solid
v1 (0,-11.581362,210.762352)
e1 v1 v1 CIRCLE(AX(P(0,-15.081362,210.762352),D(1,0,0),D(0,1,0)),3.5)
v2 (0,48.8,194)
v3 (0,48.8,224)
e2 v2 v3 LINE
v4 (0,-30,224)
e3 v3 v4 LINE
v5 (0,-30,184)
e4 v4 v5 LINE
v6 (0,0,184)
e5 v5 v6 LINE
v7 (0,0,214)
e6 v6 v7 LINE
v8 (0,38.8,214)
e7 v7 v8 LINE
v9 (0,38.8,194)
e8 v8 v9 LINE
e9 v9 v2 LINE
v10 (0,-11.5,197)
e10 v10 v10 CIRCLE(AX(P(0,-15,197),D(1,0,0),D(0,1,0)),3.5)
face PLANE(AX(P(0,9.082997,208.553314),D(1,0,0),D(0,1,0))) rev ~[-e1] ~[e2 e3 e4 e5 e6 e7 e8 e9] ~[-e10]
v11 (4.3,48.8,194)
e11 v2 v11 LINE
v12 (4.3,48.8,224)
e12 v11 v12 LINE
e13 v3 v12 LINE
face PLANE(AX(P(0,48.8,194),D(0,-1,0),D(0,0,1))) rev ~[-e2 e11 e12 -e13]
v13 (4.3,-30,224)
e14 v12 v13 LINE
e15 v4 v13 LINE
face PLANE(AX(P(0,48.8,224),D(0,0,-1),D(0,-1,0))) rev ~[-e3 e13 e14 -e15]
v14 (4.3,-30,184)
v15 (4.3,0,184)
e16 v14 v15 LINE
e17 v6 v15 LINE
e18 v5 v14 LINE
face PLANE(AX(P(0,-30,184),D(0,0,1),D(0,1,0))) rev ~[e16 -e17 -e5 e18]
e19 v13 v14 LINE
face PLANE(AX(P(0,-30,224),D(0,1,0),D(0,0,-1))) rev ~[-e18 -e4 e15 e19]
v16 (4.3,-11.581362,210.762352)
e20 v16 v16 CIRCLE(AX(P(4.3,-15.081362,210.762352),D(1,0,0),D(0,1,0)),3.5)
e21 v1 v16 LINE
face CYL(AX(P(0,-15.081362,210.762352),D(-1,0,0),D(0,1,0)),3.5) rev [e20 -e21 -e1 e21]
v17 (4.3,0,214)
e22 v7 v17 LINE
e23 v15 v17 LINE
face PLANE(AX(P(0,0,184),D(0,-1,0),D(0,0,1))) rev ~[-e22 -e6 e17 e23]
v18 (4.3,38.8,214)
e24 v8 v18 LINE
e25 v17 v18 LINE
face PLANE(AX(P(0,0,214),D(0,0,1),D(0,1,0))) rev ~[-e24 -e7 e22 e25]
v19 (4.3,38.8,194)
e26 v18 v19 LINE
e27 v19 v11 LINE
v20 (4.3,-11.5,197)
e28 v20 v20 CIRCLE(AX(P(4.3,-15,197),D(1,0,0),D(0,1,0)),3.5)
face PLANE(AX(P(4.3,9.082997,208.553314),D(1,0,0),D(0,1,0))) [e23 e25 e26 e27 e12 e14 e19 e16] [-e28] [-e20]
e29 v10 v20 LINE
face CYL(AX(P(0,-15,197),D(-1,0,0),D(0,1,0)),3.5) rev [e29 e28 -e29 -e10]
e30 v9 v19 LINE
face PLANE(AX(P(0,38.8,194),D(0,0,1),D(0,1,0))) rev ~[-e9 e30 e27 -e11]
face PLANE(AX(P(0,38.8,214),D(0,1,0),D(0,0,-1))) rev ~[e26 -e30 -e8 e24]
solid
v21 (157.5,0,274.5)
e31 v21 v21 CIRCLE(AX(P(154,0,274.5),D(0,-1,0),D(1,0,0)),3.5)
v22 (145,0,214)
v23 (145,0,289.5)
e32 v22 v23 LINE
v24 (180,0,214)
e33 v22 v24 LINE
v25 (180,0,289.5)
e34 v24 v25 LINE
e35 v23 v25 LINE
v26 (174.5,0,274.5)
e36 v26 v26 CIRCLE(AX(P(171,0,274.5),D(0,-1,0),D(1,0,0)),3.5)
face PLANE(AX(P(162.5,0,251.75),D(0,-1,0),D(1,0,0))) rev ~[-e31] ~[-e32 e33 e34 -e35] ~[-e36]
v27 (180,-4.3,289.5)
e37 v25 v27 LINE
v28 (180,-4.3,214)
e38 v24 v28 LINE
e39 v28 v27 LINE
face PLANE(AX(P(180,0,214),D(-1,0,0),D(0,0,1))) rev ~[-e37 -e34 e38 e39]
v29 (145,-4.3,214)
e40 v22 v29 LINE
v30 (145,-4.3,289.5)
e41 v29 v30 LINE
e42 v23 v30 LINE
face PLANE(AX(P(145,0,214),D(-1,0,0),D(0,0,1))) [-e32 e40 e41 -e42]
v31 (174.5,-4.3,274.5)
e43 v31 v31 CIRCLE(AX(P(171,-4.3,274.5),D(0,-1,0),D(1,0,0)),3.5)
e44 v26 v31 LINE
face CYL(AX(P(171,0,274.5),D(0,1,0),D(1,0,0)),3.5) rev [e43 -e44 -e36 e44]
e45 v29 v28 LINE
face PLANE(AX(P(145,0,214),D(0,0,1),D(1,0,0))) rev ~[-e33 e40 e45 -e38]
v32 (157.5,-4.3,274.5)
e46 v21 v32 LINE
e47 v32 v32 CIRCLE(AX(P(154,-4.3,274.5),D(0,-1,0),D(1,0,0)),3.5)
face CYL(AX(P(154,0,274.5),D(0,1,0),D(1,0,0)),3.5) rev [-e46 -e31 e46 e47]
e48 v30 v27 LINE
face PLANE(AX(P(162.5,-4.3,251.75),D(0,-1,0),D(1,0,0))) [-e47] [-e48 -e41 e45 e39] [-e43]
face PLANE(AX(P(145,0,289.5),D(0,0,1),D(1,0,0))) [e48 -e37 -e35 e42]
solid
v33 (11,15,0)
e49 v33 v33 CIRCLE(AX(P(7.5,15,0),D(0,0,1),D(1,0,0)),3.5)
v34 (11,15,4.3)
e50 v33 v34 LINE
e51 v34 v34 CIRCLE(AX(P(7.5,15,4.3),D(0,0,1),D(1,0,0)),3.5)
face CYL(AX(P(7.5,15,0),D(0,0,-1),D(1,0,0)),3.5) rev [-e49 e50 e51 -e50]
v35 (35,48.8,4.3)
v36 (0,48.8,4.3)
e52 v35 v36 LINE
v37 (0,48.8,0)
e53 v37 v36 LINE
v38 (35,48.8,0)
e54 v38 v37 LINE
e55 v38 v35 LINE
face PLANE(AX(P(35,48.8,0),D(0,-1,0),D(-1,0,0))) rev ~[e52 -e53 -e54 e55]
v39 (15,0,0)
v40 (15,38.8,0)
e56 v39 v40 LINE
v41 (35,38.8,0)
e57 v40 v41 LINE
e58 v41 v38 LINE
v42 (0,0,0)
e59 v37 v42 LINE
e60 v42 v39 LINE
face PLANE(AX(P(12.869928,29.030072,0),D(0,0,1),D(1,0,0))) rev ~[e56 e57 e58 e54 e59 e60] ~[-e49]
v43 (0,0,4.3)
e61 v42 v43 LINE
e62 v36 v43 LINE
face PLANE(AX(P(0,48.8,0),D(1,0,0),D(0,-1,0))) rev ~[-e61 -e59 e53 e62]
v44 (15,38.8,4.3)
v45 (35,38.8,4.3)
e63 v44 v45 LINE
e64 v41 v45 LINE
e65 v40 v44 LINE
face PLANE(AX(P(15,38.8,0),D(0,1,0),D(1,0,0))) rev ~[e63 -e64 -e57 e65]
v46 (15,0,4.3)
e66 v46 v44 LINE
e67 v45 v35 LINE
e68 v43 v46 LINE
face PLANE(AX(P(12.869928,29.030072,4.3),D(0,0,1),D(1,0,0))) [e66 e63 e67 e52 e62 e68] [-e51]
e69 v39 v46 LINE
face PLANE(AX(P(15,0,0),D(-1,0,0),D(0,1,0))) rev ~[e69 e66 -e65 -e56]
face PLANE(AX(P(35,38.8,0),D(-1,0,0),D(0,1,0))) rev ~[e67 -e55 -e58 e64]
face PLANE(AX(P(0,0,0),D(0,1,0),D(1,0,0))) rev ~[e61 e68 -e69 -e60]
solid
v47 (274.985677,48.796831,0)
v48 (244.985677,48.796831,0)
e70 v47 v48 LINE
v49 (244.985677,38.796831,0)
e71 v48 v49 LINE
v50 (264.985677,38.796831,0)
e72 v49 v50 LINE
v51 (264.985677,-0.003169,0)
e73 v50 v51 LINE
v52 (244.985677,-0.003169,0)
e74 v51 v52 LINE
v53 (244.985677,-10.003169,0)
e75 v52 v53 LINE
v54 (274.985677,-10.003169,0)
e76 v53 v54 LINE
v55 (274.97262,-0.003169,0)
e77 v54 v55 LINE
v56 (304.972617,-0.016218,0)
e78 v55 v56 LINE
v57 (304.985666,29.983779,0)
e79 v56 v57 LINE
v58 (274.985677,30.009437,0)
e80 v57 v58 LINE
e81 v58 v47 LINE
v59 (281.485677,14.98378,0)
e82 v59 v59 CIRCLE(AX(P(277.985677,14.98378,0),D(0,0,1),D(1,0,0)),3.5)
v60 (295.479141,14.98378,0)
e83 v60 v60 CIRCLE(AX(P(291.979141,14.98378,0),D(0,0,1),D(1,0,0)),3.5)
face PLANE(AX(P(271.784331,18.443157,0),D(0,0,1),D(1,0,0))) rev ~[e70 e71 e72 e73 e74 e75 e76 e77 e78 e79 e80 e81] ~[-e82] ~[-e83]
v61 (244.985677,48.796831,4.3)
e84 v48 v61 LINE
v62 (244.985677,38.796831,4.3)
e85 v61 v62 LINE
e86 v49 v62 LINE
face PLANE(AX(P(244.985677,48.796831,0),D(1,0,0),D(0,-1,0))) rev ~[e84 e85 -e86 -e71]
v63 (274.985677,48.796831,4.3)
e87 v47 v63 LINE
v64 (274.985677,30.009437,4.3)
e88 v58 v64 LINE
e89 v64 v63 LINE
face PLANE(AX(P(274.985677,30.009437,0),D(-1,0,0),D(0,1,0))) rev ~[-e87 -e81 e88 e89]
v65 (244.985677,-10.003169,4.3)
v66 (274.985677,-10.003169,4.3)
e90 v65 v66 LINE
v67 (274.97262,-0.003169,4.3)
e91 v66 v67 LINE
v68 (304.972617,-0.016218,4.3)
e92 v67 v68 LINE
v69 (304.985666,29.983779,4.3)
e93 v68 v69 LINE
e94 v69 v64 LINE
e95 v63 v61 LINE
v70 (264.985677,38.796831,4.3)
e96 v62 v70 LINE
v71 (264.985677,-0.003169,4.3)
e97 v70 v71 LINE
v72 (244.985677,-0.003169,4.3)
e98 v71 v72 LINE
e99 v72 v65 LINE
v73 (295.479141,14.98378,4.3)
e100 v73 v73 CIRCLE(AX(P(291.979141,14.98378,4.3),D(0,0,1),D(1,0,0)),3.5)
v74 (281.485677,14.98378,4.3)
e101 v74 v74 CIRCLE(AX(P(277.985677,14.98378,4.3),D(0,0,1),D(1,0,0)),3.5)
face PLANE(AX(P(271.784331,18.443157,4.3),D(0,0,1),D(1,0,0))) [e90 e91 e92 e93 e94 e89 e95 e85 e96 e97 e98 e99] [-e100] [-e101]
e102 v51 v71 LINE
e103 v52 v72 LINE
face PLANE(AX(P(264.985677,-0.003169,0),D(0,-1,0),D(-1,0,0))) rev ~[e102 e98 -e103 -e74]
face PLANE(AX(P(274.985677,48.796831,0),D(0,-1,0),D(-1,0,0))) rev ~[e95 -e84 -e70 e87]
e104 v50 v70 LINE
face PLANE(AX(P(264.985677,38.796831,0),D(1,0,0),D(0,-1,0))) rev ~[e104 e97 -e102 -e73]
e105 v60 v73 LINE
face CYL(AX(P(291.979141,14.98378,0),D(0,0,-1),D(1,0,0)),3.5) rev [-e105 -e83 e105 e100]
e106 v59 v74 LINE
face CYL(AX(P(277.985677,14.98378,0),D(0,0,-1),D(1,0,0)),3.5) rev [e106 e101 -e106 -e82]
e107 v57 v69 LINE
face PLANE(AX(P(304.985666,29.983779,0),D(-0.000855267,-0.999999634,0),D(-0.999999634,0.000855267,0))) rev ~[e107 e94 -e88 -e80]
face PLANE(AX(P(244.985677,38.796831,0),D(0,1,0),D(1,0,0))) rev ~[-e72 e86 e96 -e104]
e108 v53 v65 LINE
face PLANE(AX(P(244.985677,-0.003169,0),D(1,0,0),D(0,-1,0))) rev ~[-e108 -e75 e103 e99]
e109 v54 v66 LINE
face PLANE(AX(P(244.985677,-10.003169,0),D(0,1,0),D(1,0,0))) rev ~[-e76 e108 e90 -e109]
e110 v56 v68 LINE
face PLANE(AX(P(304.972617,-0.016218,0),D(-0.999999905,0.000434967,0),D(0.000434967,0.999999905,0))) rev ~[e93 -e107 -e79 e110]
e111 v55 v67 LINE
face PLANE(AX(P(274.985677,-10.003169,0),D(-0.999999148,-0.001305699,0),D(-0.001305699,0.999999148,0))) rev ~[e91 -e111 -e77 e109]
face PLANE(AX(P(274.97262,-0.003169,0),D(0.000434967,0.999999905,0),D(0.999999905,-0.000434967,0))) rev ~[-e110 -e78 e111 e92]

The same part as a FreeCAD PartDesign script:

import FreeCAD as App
import Part
import Sketcher
from FreeCAD import Vector
Q = App.Units.Quantity


def add_polygon(sketch, points):
    """Adds a closed chain of lines whose ends are joined by coincident constraints."""
    first, n = sketch.GeometryCount, len(points)
    for a, b in zip(points, points[1:] + points[:1]):
        sketch.addGeometry(Part.LineSegment(App.Vector(*a, 0), App.Vector(*b, 0)), False)
    for i in range(n):
        sketch.addConstraint(Sketcher.Constraint("Coincident", first + i, 2, first + (i + 1) % n, 1))

doc = App.newDocument("Part")
body = doc.addObject("PartDesign::Body", "Body")
body.AllowCompound = True

# Sketch on XY plane
sketch1 = doc.addObject("Sketcher::SketchObject", "Sketch")
body.addObject(sketch1)
sketch1.AttachmentSupport = (doc.XY_Plane, [""])
sketch1.MapMode = "FlatFace"
add_polygon(sketch1, [(15, 38.8), (35, 38.8), (35, 48.8), (0, 48.8), (0, 0), (15, 0)])  # lines 0-5
sketch1.addGeometry(Part.Circle(Vector(7.5, 15, 0), Vector(0, 0, 1), 3.5), False)  # 6
add_polygon(sketch1, [(265, 38.8), (265, 0), (245, 0), (245, -10), (275, -10), (275, 0), (305, 0), (305, 30), (275, 30), (275, 48.8), (245, 48.8), (245, 38.8)])  # lines 7-18
sketch1.addGeometry(Part.Circle(Vector(278, 15, 0), Vector(0, 0, 1), 3.5), False)  # 19
sketch1.addGeometry(Part.Circle(Vector(292, 15, 0), Vector(0, 0, 1), 3.5), False)  # 20
sketch1.addConstraint([
    Sketcher.Constraint("Horizontal", 0),
    Sketcher.Constraint("Vertical", 1),
    Sketcher.Constraint("Horizontal", 2),
    Sketcher.Constraint("Vertical", 3),
    Sketcher.Constraint("Horizontal", 4),
    Sketcher.Constraint("Vertical", 5),
    Sketcher.Constraint("Vertical", 7),
    Sketcher.Constraint("Horizontal", 8),
    Sketcher.Constraint("Vertical", 9),
    Sketcher.Constraint("Horizontal", 10),
    Sketcher.Constraint("Vertical", 15),
    Sketcher.Constraint("Horizontal", 16),
    Sketcher.Constraint("Vertical", 17),
    Sketcher.Constraint("Horizontal", 18),
    Sketcher.Constraint("Coincident", 3, 2, -1, 1),
    Sketcher.Constraint("Equal", 6, 19),
    Sketcher.Constraint("Equal", 19, 20),
    Sketcher.Constraint("Perpendicular", 12, 13),
    Sketcher.Constraint("Horizontal", 19, 3, 20, 3),
    Sketcher.Constraint("Horizontal", 8, 2, 11, 2),
    Sketcher.Constraint("Vertical", 10, 2, 14, 2),
    Sketcher.Constraint("Vertical", 9, 2, 16, 2),
    Sketcher.Constraint("Equal", 0, 8),
    Sketcher.Constraint("Equal", 5, 7),
    Sketcher.Constraint("Equal", 1, 9),
    Sketcher.Constraint("Equal", 9, 17),
    Sketcher.Constraint("Equal", 12, 13),
    Sketcher.Constraint("Equal", 13, 14),
    Sketcher.Constraint("Diameter", 6, Q("7 mm")),
    Sketcher.Constraint("DistanceX", 0, 1, 0, 2, Q("20 mm")),
    Sketcher.Constraint("DistanceX", 2, 2, 2, 1, Q("35 mm")),
    Sketcher.Constraint("DistanceX", 10, 1, 10, 2, Q("30 mm")),
    Sketcher.Constraint("DistanceY", 1, 1, 1, 2, Q("10 mm")),
    Sketcher.Constraint("Distance", 12, Q("30 mm")),
    Sketcher.Constraint("DistanceY", 3, 2, 3, 1, Q("48.8 mm")),
    Sketcher.Constraint("DistanceY", -1, 1, 6, 3, Q("15 mm")),
    Sketcher.Constraint("DistanceX", 7, 2, 19, 3, Q("13 mm")),
    Sketcher.Constraint("DistanceY", 20, 3, 13, 2, Q("14.999999 mm")),
    Sketcher.Constraint("DistanceX", -1, 1, 6, 3, Q("7.5 mm")),
    Sketcher.Constraint("DistanceY", 15, 1, 15, 2, Q("18.787394 mm")),
    Sketcher.Constraint("DistanceY", -1, 1, 19, 3, Q("14.98378 mm")),
    Sketcher.Constraint("DistanceX", -1, 1, 20, 3, Q("291.979141 mm")),
    Sketcher.Constraint("DistanceY", 7, 2, -1, 1, Q("0.003169 mm")),
    Sketcher.Constraint("DistanceX", -1, 1, 11, 2, Q("274.97262 mm")),
])
pad1 = doc.addObject("PartDesign::Pad", "Pad")
body.addObject(pad1)
pad1.Profile = sketch1
pad1.Length = 4.3
body2 = doc.addObject("PartDesign::Body", "Body001")

# Sketch on YZ plane
sketch2 = doc.addObject("Sketcher::SketchObject", "Sketch001")
body2.addObject(sketch2)
sketch2.AttachmentSupport = (doc.getObject("YZ_Plane001"), [""])
sketch2.MapMode = "FlatFace"
add_polygon(sketch2, [(-30, 184), (0, 184), (0, 214), (38.8, 214), (38.8, 194), (48.8, 194), (48.8, 224), (-30, 224)])  # lines 0-7
sketch2.addGeometry(Part.Circle(Vector(-15, 197, 0), Vector(0, 0, 1), 3.5), False)  # 8
sketch2.addGeometry(Part.Circle(Vector(-15.1, 210.8, 0), Vector(0, 0, 1), 3.5), False)  # 9
sketch2.addConstraint([
    Sketcher.Constraint("Horizontal", 0),
    Sketcher.Constraint("Vertical", 1),
    Sketcher.Constraint("Horizontal", 2),
    Sketcher.Constraint("Vertical", 3),
    Sketcher.Constraint("Horizontal", 4),
    Sketcher.Constraint("Vertical", 5),
    Sketcher.Constraint("Horizontal", 6),
    Sketcher.Constraint("Vertical", 7),
    Sketcher.Constraint("Equal", 8, 9),
    Sketcher.Constraint("PointOnObject", 0, 2, -2),
    Sketcher.Constraint("Equal", 0, 1),
    Sketcher.Constraint("Equal", 1, 5),
    Sketcher.Constraint("Diameter", 8, Q("7 mm")),
    Sketcher.Constraint("DistanceX", 0, 1, 0, 2, Q("30 mm")),
    Sketcher.Constraint("DistanceX", 4, 1, 4, 2, Q("10 mm")),
    Sketcher.Constraint("DistanceY", 3, 2, 3, 1, Q("20 mm")),
    Sketcher.Constraint("DistanceX", 2, 1, 2, 2, Q("38.8 mm")),
    Sketcher.Constraint("DistanceX", 8, 3, -1, 1, Q("15 mm")),
    Sketcher.Constraint("DistanceY", -1, 1, 8, 3, Q("197 mm")),
    Sketcher.Constraint("DistanceY", -1, 1, 0, 2, Q("184 mm")),
    Sketcher.Constraint("DistanceY", -1, 1, 9, 3, Q("210.762352 mm")),
    Sketcher.Constraint("DistanceX", 9, 3, 2, 2, Q("53.881362 mm")),
])
pad2 = doc.addObject("PartDesign::Pad", "Pad001")
body2.addObject(pad2)
pad2.Profile = sketch2
pad2.Length = 4.3
body3 = doc.addObject("PartDesign::Body", "Body002")

# Sketch on XZ plane
sketch3 = doc.addObject("Sketcher::SketchObject", "Sketch002")
body3.addObject(sketch3)
sketch3.AttachmentSupport = (doc.getObject("XZ_Plane002"), [""])
sketch3.MapMode = "FlatFace"
add_polygon(sketch3, [(145, 289.5), (145, 214), (180, 214), (180, 289.5)])  # lines 0-3
sketch3.addGeometry(Part.Circle(Vector(154, 274.5, 0), Vector(0, 0, 1), 3.5), False)  # 4
sketch3.addGeometry(Part.Circle(Vector(171, 274.5, 0), Vector(0, 0, 1), 3.5), False)  # 5
sketch3.addConstraint([
    Sketcher.Constraint("Vertical", 0),
    Sketcher.Constraint("Horizontal", 1),
    Sketcher.Constraint("Vertical", 2),
    Sketcher.Constraint("Horizontal", 3),
    Sketcher.Constraint("Equal", 4, 5),
    Sketcher.Constraint("Horizontal", 4, 3, 5, 3),
    Sketcher.Constraint("Diameter", 4, Q("7 mm")),
    Sketcher.Constraint("DistanceX", 1, 1, 1, 2, Q("35 mm")),
    Sketcher.Constraint("DistanceY", 0, 2, 0, 1, Q("75.5 mm")),
    Sketcher.Constraint("DistanceX", -1, 1, 4, 3, Q("154 mm")),
    Sketcher.Constraint("DistanceX", -1, 1, 5, 3, Q("171 mm")),
    Sketcher.Constraint("DistanceX", -1, 1, 0, 2, Q("145 mm")),
    Sketcher.Constraint("DistanceY", -1, 1, 0, 2, Q("214 mm")),
    Sketcher.Constraint("DistanceY", 5, 3, 2, 2, Q("15 mm")),
])
pad3 = doc.addObject("PartDesign::Pad", "Pad002")
body3.addObject(pad3)
pad3.Profile = sketch3
pad3.Length = 4.3

doc.recompute()
